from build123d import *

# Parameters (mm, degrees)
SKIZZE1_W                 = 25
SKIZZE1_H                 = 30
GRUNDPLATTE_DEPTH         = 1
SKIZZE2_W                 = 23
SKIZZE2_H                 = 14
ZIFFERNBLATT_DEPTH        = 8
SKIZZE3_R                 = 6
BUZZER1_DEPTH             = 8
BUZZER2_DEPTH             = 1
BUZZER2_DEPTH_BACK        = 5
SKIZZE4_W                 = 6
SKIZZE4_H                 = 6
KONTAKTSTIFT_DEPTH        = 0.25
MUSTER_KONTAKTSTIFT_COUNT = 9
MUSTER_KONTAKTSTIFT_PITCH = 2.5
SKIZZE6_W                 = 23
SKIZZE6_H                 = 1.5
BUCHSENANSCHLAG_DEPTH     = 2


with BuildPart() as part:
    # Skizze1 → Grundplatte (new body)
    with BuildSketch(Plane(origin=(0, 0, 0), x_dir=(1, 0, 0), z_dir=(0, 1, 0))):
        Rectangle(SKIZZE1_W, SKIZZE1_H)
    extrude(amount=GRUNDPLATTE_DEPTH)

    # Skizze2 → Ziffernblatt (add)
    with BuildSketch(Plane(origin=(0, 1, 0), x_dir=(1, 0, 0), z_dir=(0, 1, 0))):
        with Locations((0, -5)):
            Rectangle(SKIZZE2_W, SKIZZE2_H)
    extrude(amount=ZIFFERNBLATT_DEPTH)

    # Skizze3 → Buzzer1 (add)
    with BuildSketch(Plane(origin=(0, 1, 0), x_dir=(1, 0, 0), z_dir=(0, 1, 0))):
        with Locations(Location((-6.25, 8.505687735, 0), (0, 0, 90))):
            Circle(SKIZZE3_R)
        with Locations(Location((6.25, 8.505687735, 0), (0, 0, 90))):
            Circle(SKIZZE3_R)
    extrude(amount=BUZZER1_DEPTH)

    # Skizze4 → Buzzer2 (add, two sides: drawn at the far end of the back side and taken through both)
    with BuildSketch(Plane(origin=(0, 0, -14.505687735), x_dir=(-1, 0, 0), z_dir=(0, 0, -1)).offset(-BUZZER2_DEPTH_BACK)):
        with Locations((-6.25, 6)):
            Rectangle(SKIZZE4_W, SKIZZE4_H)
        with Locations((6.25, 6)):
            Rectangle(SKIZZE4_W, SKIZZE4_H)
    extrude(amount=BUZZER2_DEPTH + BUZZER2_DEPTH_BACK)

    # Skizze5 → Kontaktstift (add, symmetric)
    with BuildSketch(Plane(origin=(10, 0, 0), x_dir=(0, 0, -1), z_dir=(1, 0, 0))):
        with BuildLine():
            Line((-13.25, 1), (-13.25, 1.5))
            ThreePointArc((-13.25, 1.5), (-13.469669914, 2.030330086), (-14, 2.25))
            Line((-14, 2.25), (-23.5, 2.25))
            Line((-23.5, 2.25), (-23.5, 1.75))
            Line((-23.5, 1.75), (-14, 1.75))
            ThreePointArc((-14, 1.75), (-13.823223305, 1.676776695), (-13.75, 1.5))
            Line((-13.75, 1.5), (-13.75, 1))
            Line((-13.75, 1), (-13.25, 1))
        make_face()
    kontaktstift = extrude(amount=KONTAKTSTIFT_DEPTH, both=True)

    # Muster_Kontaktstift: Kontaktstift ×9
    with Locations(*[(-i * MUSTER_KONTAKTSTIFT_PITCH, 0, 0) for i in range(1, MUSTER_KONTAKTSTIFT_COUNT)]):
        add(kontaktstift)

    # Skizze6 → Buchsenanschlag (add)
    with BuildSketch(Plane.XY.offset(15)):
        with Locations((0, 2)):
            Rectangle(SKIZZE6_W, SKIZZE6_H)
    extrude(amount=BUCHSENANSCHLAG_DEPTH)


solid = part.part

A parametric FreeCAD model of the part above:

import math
import FreeCAD as App
import Part
import Sketcher
from FreeCAD import Vector
Q = App.Units.Quantity


def add_polygon(sketch, points):
    """Adds a closed chain of lines whose ends are joined by coincident constraints."""
    first, n = sketch.GeometryCount, len(points)
    for a, b in zip(points, points[1:] + points[:1]):
        sketch.addGeometry(Part.LineSegment(App.Vector(*a, 0), App.Vector(*b, 0)), False)
    for i in range(n):
        sketch.addConstraint(Sketcher.Constraint("Coincident", first + i, 2, first + (i + 1) % n, 1))

doc = App.newDocument("Part")
params = doc.addObject("Spreadsheet::Sheet", "Params")
for row, (alias, value) in enumerate([
    ("sketch1_width", "25 mm"),
    ("sketch1_height", "30 mm"),
    ("pad1_length", "1 mm"),
    ("sketch2_width", "23 mm"),
    ("sketch2_height", "14 mm"),
    ("pad2_length", "8 mm"),
    ("sketch3_diameter", "12 mm"),
    ("pad3_length", "8 mm"),
    ("sketch4_width", "6 mm"),
    ("pad4_length", "1 mm"),
    ("pad4_length2", "5 mm"),
    ("sketch5_radius", "0.75 mm"),
    ("sketch5_radius2", "0.25 mm"),
    ("sketch5_height", "9.5 mm"),
    ("pad5_length", "0.5 mm"),
    ("linearpattern_pitch", "2.5 mm"),
    ("sketch6_width", "23 mm"),
    ("sketch6_height", "1.5 mm"),
    ("pad6_length", "2 mm"),
], start=1):
    params.set(f"A{row}", alias)
    params.set(f"B{row}", "=" + value)
    params.setAlias(f"B{row}", alias)

body = doc.addObject("PartDesign::Body", "Body")

# Sketch on XZ plane
sketch1 = doc.addObject("Sketcher::SketchObject", "Sketch")
body.addObject(sketch1)
sketch1.AttachmentSupport = (doc.XZ_Plane, [""])
sketch1.MapMode = "FlatFace"
add_polygon(sketch1, [(-12, -15), (-12, 15), (12, 15), (12, -15)])  # lines 0-3
sketch1.addConstraint(Sketcher.Constraint("Vertical", 0))
sketch1.addConstraint(Sketcher.Constraint("Horizontal", 1))
sketch1.addConstraint(Sketcher.Constraint("Vertical", 2))
sketch1.addConstraint(Sketcher.Constraint("Horizontal", 3))
sketch1.addConstraint(Sketcher.Constraint("Symmetric", 0, 2, 2, 2, -1, 1))
sketch1.addConstraint(Sketcher.Constraint("DistanceX", 1, 1, 1, 2, Q("25 mm")))
sketch1.addConstraint(Sketcher.Constraint("DistanceY", 0, 1, 0, 2, Q("30 mm")))
sketch1.setExpression("Constraints[9]", "Params.sketch1_width")
sketch1.setExpression("Constraints[10]", "Params.sketch1_height")
pad1 = doc.addObject("PartDesign::Pad", "Pad")
body.addObject(pad1)
pad1.Profile = sketch1
pad1.setExpression("Length", "Params.pad1_length")
pad1.Reversed = True

# Sketch on XZ plane
sketch2 = doc.addObject("Sketcher::SketchObject", "Sketch001")
body.addObject(sketch2)
sketch2.AttachmentSupport = (doc.XZ_Plane, [""])
sketch2.MapMode = "FlatFace"
sketch2.AttachmentOffset = App.Placement(Vector(0, 0, -1), App.Rotation())
add_polygon(sketch2, [(-12, -2), (-12, 12), (12, 12), (12, -2)])  # lines 0-3
sketch2.addConstraint(Sketcher.Constraint("Vertical", 0))
sketch2.addConstraint(Sketcher.Constraint("Horizontal", 1))
sketch2.addConstraint(Sketcher.Constraint("Vertical", 2))
sketch2.addConstraint(Sketcher.Constraint("Horizontal", 3))
sketch2.addConstraint(Sketcher.Constraint("DistanceX", 1, 1, 1, 2, Q("23 mm")))
sketch2.addConstraint(Sketcher.Constraint("DistanceY", 0, 1, 0, 2, Q("14 mm")))
sketch2.addConstraint(Sketcher.Constraint("DistanceY", -1, 1, 0, 2, Q("12 mm")))
sketch2.addConstraint(Sketcher.Constraint("DistanceX", 0, 2, -1, 1, Q("11.5 mm")))
sketch2.setExpression("Constraints[8]", "Params.sketch2_width")
sketch2.setExpression("Constraints[9]", "Params.sketch2_height")
pad2 = doc.addObject("PartDesign::Pad", "Pad001")
body.addObject(pad2)
pad2.Profile = sketch2
pad2.setExpression("Length", "Params.pad2_length")
pad2.Reversed = True

# Sketch on XZ plane
sketch3 = doc.addObject("Sketcher::SketchObject", "Sketch002")
body.addObject(sketch3)
sketch3.AttachmentSupport = (doc.XZ_Plane, [""])
sketch3.MapMode = "FlatFace"
sketch3.AttachmentOffset = App.Placement(Vector(0, 0, -1), App.Rotation())
sketch3.addGeometry(Part.Circle(Vector(-6, -9, 0), Vector(0, 0, 1), 6), False)
sketch3.addGeometry(Part.Circle(Vector(6, -9, 0), Vector(0, 0, 1), 6), False)
sketch3.addConstraint(Sketcher.Constraint("Equal", 0, 1))
sketch3.addConstraint(Sketcher.Constraint("Symmetric", 0, 3, 1, 3, -2))
sketch3.addConstraint(Sketcher.Constraint("Diameter", 0, Q("12 mm")))
sketch3.addConstraint(Sketcher.Constraint("DistanceX", 0, 3, 1, 3, Q("12.5 mm")))
sketch3.addConstraint(Sketcher.Constraint("DistanceY", 0, 3, -1, 1, Q("8.505688 mm")))
sketch3.setExpression("Constraints[2]", "Params.sketch3_diameter")
pad3 = doc.addObject("PartDesign::Pad", "Pad002")
body.addObject(pad3)
pad3.Profile = sketch3
pad3.setExpression("Length", "Params.pad3_length")
pad3.Reversed = True

# Sketch on XY plane
sketch4 = doc.addObject("Sketcher::SketchObject", "Sketch003")
body.addObject(sketch4)
sketch4.AttachmentSupport = (doc.XY_Plane, [""])
sketch4.MapMode = "FlatFace"
sketch4.AttachmentOffset = App.Placement(Vector(0, 0, -14.505688), App.Rotation())
add_polygon(sketch4, [(9, 9), (9, 3), (3, 3), (3, 9)])  # lines 0-3
add_polygon(sketch4, [(-3, 9), (-3, 3), (-9, 3), (-9, 9)])  # lines 4-7
sketch4.addConstraint(Sketcher.Constraint("Vertical", 0))
sketch4.addConstraint(Sketcher.Constraint("Horizontal", 1))
sketch4.addConstraint(Sketcher.Constraint("Vertical", 2))
sketch4.addConstraint(Sketcher.Constraint("Horizontal", 3))
sketch4.addConstraint(Sketcher.Constraint("Vertical", 4))
sketch4.addConstraint(Sketcher.Constraint("Horizontal", 5))
sketch4.addConstraint(Sketcher.Constraint("Vertical", 6))
sketch4.addConstraint(Sketcher.Constraint("Horizontal", 7))
sketch4.addConstraint(Sketcher.Constraint("Symmetric", 1, 2, 4, 2, -2))
sketch4.addConstraint(Sketcher.Constraint("Symmetric", 3, 2, 6, 2, -2))
sketch4.addConstraint(Sketcher.Constraint("Equal", 7, 0))
sketch4.addConstraint(Sketcher.Constraint("DistanceX", 1, 2, 1, 1, Q("6 mm")))
sketch4.addConstraint(Sketcher.Constraint("DistanceY", -1, 1, 0, 2, Q("3 mm")))
sketch4.addConstraint(Sketcher.Constraint("DistanceX", 4, 2, 1, 2, Q("6.5 mm")))
sketch4.setExpression("Constraints[19]", "Params.sketch4_width")
pad4 = doc.addObject("PartDesign::Pad", "Pad003")
body.addObject(pad4)
pad4.Profile = sketch4
pad4.Type = "TwoLengths"
pad4.setExpression("Length", "Params.pad4_length")
pad4.setExpression("Length2", "Params.pad4_length2")
pad4.Reversed = True

# Sketch on YZ plane
sketch5 = doc.addObject("Sketcher::SketchObject", "Sketch004")
body.addObject(sketch5)
sketch5.AttachmentSupport = (doc.YZ_Plane, [""])
sketch5.MapMode = "FlatFace"
sketch5.AttachmentOffset = App.Placement(Vector(0, 0, 10), App.Rotation())
sketch5.addGeometry(Part.LineSegment(Vector(1, 13.25, 0), Vector(1.5, 13.25, 0)), False)
sketch5.addGeometry(Part.ArcOfCircle(Part.Circle(Vector(1.5, 14, 0), Vector(0, 0, 1), 0.75), math.radians(-90), math.radians(0)), False)
sketch5.addGeometry(Part.LineSegment(Vector(2.25, 14, 0), Vector(2.25, 23.5, 0)), False)
sketch5.addGeometry(Part.LineSegment(Vector(2.25, 23.5, 0), Vector(1.75, 23.5, 0)), False)
sketch5.addGeometry(Part.LineSegment(Vector(1.75, 23.5, 0), Vector(1.75, 14, 0)), False)
sketch5.addGeometry(Part.ArcOfCircle(Part.Circle(Vector(1.5, 14, 0), Vector(0, 0, 1), 0.25), math.radians(-90), math.radians(0)), False)
sketch5.addGeometry(Part.LineSegment(Vector(1.5, 13.75, 0), Vector(1, 13.75, 0)), False)
sketch5.addGeometry(Part.LineSegment(Vector(1, 13.75, 0), Vector(1, 13.25, 0)), False)
sketch5.addConstraint(Sketcher.Constraint("Tangent", 0, 2, 1, 1))
sketch5.addConstraint(Sketcher.Constraint("Tangent", 1, 2, 2, 1))
sketch5.addConstraint(Sketcher.Constraint("Coincident", 2, 2, 3, 1))
sketch5.addConstraint(Sketcher.Constraint("Coincident", 3, 2, 4, 1))
sketch5.addConstraint(Sketcher.Constraint("Tangent", 4, 2, 5, 2))
sketch5.addConstraint(Sketcher.Constraint("Tangent", 5, 1, 6, 1))
sketch5.addConstraint(Sketcher.Constraint("Coincident", 6, 2, 7, 1))
sketch5.addConstraint(Sketcher.Constraint("Coincident", 7, 2, 0, 1))
sketch5.addConstraint(Sketcher.Constraint("Horizontal", 0))
sketch5.addConstraint(Sketcher.Constraint("Vertical", 2))
sketch5.addConstraint(Sketcher.Constraint("Horizontal", 3))
sketch5.addConstraint(Sketcher.Constraint("Vertical", 4))
sketch5.addConstraint(Sketcher.Constraint("Horizontal", 6))
sketch5.addConstraint(Sketcher.Constraint("Vertical", 7))
sketch5.addConstraint(Sketcher.Constraint("Coincident", 5, 3, 1, 3))
sketch5.addConstraint(Sketcher.Constraint("Equal", 0, 3))
sketch5.addConstraint(Sketcher.Constraint("Radius", 1, Q("0.75 mm")))
sketch5.addConstraint(Sketcher.Constraint("Radius", 5, Q("0.25 mm")))
sketch5.addConstraint(Sketcher.Constraint("DistanceY", 2, 1, 2, 2, Q("9.5 mm")))
sketch5.addConstraint(Sketcher.Constraint("DistanceY", -1, 1, 1, 3, Q("14 mm")))
sketch5.addConstraint(Sketcher.Constraint("DistanceX", -1, 1, 6, 2, Q("1 mm")))
sketch5.setExpression("Constraints[16]", "Params.sketch5_radius")
sketch5.setExpression("Constraints[17]", "Params.sketch5_radius2")
sketch5.setExpression("Constraints[18]", "Params.sketch5_height")
pad5 = doc.addObject("PartDesign::Pad", "Pad004")
body.addObject(pad5)
pad5.Profile = sketch5
pad5.setExpression("Length", "Params.pad5_length")
pad5.Midplane = True
doc.recompute()

linearpattern = doc.addObject("PartDesign::LinearPattern", "LinearPattern")
body.addObject(linearpattern)
linearpattern.Originals = [pad5]
linearpattern.Direction = (doc.X_Axis, [""])
linearpattern.Mode = "offset"
linearpattern.setExpression("Offset", "Params.linearpattern_pitch")
linearpattern.Occurrences = 9
linearpattern.Reversed = True
body.Tip = linearpattern

# Sketch on XY plane
sketch6 = doc.addObject("Sketcher::SketchObject", "Sketch005")
body.addObject(sketch6)
sketch6.AttachmentSupport = (doc.XY_Plane, [""])
sketch6.MapMode = "FlatFace"
sketch6.AttachmentOffset = App.Placement(Vector(0, 0, 15), App.Rotation())
add_polygon(sketch6, [(-11.5, 2.8), (-11.5, 1.2), (11.5, 1.2), (11.5, 2.8)])  # lines 0-3
sketch6.addConstraint(Sketcher.Constraint("Vertical", 0))
sketch6.addConstraint(Sketcher.Constraint("Horizontal", 1))
sketch6.addConstraint(Sketcher.Constraint("Vertical", 2))
sketch6.addConstraint(Sketcher.Constraint("Horizontal", 3))
sketch6.addConstraint(Sketcher.Constraint("DistanceX", 1, 1, 1, 2, Q("23 mm")))
sketch6.addConstraint(Sketcher.Constraint("DistanceY", 0, 2, 0, 1, Q("1.5 mm")))
sketch6.addConstraint(Sketcher.Constraint("DistanceX", 0, 2, -1, 1, Q("11.5 mm")))
sketch6.addConstraint(Sketcher.Constraint("DistanceY", -1, 1, 0, 2, Q("1.25 mm")))
sketch6.setExpression("Constraints[8]", "Params.sketch6_width")
sketch6.setExpression("Constraints[9]", "Params.sketch6_height")
pad6 = doc.addObject("PartDesign::Pad", "Pad005")
body.addObject(pad6)
pad6.Profile = sketch6
pad6.setExpression("Length", "Params.pad6_length")

doc.recompute()
